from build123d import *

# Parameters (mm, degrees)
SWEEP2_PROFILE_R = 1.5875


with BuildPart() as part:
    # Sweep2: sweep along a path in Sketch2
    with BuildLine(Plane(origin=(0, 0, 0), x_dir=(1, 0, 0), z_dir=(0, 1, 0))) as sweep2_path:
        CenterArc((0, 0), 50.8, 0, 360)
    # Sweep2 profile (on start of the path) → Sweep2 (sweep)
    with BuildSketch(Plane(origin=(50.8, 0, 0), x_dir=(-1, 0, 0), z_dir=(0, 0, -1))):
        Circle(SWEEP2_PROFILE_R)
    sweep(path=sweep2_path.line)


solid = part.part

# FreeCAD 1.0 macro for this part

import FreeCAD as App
import Part
import Sketcher
Q = App.Units.Quantity

doc = App.newDocument("Part")
params = doc.addObject("Spreadsheet::Sheet", "Params")
for row, (alias, value) in enumerate([
    ("sketch1_diameter", "0.125 in"),
    ("sketch2_diameter", "4 in"),
], start=1):
    params.set(f"A{row}", alias)
    params.set(f"B{row}", "=" + value)
    params.setAlias(f"B{row}", alias)

body = doc.addObject("PartDesign::Body", "Body")

# Sketch on XY plane
sketch1 = doc.addObject("Sketcher::SketchObject", "Sketch")
body.addObject(sketch1)
sketch1.AttachmentSupport = (doc.XY_Plane, [""])
sketch1.MapMode = "FlatFace"
sketch1.addGeometry(Part.Circle(App.Vector(50.8, 0, 0), App.Vector(0, 0, 1), 1.5875), False)
sketch1.addConstraint([
    Sketcher.Constraint("PointOnObject", 0, 3, -1),
    Sketcher.Constraint("Diameter", 0, Q("0.125 in")),
    Sketcher.Constraint("DistanceX", -1, 1, 0, 3, Q("2 in")),
])
sketch1.setExpression("Constraints[1]", "Params.sketch1_diameter")

# Sketch on XZ plane
sketch2 = doc.addObject("Sketcher::SketchObject", "Sketch001")
body.addObject(sketch2)
sketch2.AttachmentSupport = (doc.XZ_Plane, [""])
sketch2.MapMode = "FlatFace"
sketch2.addGeometry(Part.Circle(App.Vector(0, 0, 0), App.Vector(0, 0, 1), 50.8), False)
sketch2.addConstraint([
    Sketcher.Constraint("Coincident", 0, 3, -1, 1),
    Sketcher.Constraint("Diameter", 0, Q("4 in")),
])
sketch2.setExpression("Constraints[1]", "Params.sketch2_diameter")
doc.recompute()

additivepipe = doc.addObject("PartDesign::AdditivePipe", "AdditivePipe")
body.addObject(additivepipe)
additivepipe.Profile = sketch1
additivepipe.Spine = (sketch2, ["Edge1"])

doc.recompute()
